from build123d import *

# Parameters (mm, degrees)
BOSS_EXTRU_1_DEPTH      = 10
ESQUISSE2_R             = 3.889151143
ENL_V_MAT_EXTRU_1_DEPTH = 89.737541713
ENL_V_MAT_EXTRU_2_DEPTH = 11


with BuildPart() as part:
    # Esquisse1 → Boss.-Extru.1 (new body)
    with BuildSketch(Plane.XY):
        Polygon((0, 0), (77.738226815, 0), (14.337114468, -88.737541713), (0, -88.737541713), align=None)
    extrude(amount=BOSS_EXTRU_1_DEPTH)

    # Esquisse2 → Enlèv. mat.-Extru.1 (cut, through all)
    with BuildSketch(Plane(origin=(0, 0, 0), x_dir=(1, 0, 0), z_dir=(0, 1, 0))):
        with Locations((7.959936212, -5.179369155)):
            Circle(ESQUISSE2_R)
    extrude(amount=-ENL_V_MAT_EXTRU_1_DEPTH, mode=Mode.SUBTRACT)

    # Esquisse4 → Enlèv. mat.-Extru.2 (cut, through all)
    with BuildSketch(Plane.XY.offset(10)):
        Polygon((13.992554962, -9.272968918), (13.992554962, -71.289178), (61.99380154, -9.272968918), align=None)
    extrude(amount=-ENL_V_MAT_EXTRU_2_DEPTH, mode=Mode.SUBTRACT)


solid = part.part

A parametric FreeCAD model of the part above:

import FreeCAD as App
import Part
import Sketcher
from FreeCAD import Vector

doc = App.newDocument("Part")
params = doc.addObject("Spreadsheet::Sheet", "Params")
for row, (alias, value) in enumerate([
    ("pad1_length", "10 mm"),
], start=1):
    params.set(f"A{row}", alias)
    params.set(f"B{row}", "=" + value)
    params.setAlias(f"B{row}", alias)

body = doc.addObject("PartDesign::Body", "Body")

sketch1 = doc.addObject("Sketcher::SketchObject", "Sketch")
body.addObject(sketch1)
sketch1.AttachmentSupport = (doc.XY_Plane, [""])
sketch1.MapMode = "FlatFace"
sketch1.addGeometry([
    Part.LineSegment(Vector(78, 0, 0), Vector(0, 0, 0)),
    Part.LineSegment(Vector(0, 0, 0), Vector(0, -89, 0)),
    Part.LineSegment(Vector(0, -89, 0), Vector(14, -89, 0)),
    Part.LineSegment(Vector(14, -89, 0), Vector(78, 0, 0)),
], False)
sketch1.addConstraint([
    Sketcher.Constraint("Coincident", 0, 2, 1, 1),
    Sketcher.Constraint("Coincident", 1, 2, 2, 1),
    Sketcher.Constraint("Coincident", 2, 2, 3, 1),
    Sketcher.Constraint("Coincident", 3, 2, 0, 1),
    Sketcher.Constraint("Horizontal", 0),
    Sketcher.Constraint("Vertical", 1),
    Sketcher.Constraint("Horizontal", 2),
    Sketcher.Constraint("Coincident", 0, 2, -1, 1),
    Sketcher.Constraint("DistanceY", 1, 2, 1, 1, 88.737542),
    Sketcher.Constraint("DistanceX", 0, 2, 0, 1, 77.738227),
    Sketcher.Constraint("DistanceX", 2, 1, 2, 2, 14.337114),
])
pad1 = doc.addObject("PartDesign::Pad", "Pad")
body.addObject(pad1)
pad1.Profile = sketch1
pad1.setExpression("Length", "Params.pad1_length")

sketch2 = doc.addObject("Sketcher::SketchObject", "Sketch001")
body.addObject(sketch2)
sketch2.AttachmentSupport = (doc.XZ_Plane, [""])
sketch2.MapMode = "FlatFace"
sketch2.addGeometry(Part.Circle(Vector(8, 5.2, 0), Vector(0, 0, 1), 3.9), False)
sketch2.addConstraint([
    Sketcher.Constraint("Diameter", 0, 7.778302),
    Sketcher.Constraint("DistanceY", -1, 1, 0, 3, 5.179369),
    Sketcher.Constraint("DistanceX", -1, 1, 0, 3, 7.959936),
])
pocket1 = doc.addObject("PartDesign::Pocket", "Pocket")
body.addObject(pocket1)
pocket1.Profile = sketch2
pocket1.Type = "ThroughAll"
pocket1.Reversed = True

sketch3 = doc.addObject("Sketcher::SketchObject", "Sketch002")
body.addObject(sketch3)
sketch3.AttachmentSupport = (doc.XY_Plane, [""])
sketch3.MapMode = "FlatFace"
sketch3.AttachmentOffset = App.Placement(Vector(0, 0, 10), App.Rotation())
sketch3.addGeometry([
    Part.LineSegment(Vector(14, -9, 0), Vector(14, -71, 0)),
    Part.LineSegment(Vector(14, -71, 0), Vector(62, -9, 0)),
    Part.LineSegment(Vector(62, -9, 0), Vector(14, -9, 0)),
], False)
sketch3.addConstraint([
    Sketcher.Constraint("Coincident", 0, 2, 1, 1),
    Sketcher.Constraint("Coincident", 1, 2, 2, 1),
    Sketcher.Constraint("Coincident", 2, 2, 0, 1),
    Sketcher.Constraint("Vertical", 0),
    Sketcher.Constraint("Horizontal", 2),
    Sketcher.Constraint("DistanceY", 0, 2, 0, 1, 62.016209),
    Sketcher.Constraint("DistanceX", -1, 1, 1, 2, 61.993802),
    Sketcher.Constraint("DistanceX", 2, 2, 2, 1, 48.001247),
    Sketcher.Constraint("DistanceY", 0, 2, -1, 1, 71.289178),
])
pocket2 = doc.addObject("PartDesign::Pocket", "Pocket001")
body.addObject(pocket2)
pocket2.Profile = sketch3
pocket2.Type = "ThroughAll"

doc.recompute()
